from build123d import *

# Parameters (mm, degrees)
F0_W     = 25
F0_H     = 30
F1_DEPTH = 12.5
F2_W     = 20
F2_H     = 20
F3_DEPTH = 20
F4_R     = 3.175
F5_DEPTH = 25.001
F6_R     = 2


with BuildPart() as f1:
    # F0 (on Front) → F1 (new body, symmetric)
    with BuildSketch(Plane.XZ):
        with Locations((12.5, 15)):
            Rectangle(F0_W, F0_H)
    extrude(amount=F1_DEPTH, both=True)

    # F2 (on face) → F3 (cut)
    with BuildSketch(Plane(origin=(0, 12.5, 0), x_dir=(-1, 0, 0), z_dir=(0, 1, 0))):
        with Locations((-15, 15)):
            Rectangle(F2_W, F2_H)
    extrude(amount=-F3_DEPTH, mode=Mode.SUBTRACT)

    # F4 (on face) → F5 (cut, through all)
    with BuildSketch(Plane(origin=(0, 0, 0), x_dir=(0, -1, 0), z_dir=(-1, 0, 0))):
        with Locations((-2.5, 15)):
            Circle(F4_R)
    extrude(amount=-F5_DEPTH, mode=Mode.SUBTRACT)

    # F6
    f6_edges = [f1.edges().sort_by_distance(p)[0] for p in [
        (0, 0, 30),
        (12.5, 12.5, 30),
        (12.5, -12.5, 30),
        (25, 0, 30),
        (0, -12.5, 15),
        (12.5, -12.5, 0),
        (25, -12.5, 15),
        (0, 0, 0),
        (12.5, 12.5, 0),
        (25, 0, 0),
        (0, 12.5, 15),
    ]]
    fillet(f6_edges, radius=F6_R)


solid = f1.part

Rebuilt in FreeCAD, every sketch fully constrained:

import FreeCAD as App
import Part
import Sketcher

V = App.Vector
Q = App.Units.Quantity


def edges_at(feature, points):
    """Names of the edges that pass closest to the given points."""
    edges = feature.Shape.Edges
    near = lambda p: min(range(len(edges)), key=lambda i: edges[i].distToShape(Part.Vertex(*p))[0])
    return sorted({f"Edge{near(p) + 1}" for p in points})


def add_polygon(sketch, points):
    """Adds a closed chain of lines whose ends are joined by coincident constraints."""
    first, n = sketch.GeometryCount, len(points)
    for a, b in zip(points, points[1:] + points[:1]):
        sketch.addGeometry(Part.LineSegment(App.Vector(*a, 0), App.Vector(*b, 0)), False)
    for i in range(n):
        sketch.addConstraint(Sketcher.Constraint("Coincident", first + i, 2, first + (i + 1) % n, 1))

doc = App.newDocument("Part")
body = doc.addObject("PartDesign::Body", "Body")

sketch1 = body.newObject("Sketcher::SketchObject", "Sketch")
sketch1.AttachmentSupport = (doc.getObject("XZ_Plane"), [""])
sketch1.MapMode = "FlatFace"
add_polygon(sketch1, [(0, 30), (0, 0), (25, 0), (25, 30)])
sketch1.addConstraint([
    Sketcher.Constraint("Vertical", 0),
    Sketcher.Constraint("Horizontal", 1),
    Sketcher.Constraint("Vertical", 2),
    Sketcher.Constraint("Horizontal", 3),
    Sketcher.Constraint("Coincident", 0, 2, -1, 1),
    Sketcher.Constraint("DistanceX", 1, 1, 1, 2, Q("25 mm")),
    Sketcher.Constraint("DistanceY", 0, 2, 0, 1, Q("30 mm")),
])
pad1 = body.newObject("PartDesign::Pad", "Pad")
pad1.Profile = sketch1
pad1.Length = 25
pad1.Midplane = True

sketch2 = body.newObject("Sketcher::SketchObject", "Sketch001")
sketch2.AttachmentSupport = (doc.getObject("XZ_Plane"), [""])
sketch2.MapMode = "FlatFace"
sketch2.AttachmentOffset = App.Placement(V(0, 0, -12.5), App.Rotation())
add_polygon(sketch2, [(25, 25), (25, 5), (5, 5), (5, 25)])
sketch2.addConstraint([
    Sketcher.Constraint("Vertical", 0),
    Sketcher.Constraint("Horizontal", 1),
    Sketcher.Constraint("Vertical", 2),
    Sketcher.Constraint("Horizontal", 3),
    Sketcher.Constraint("Equal", 3, 0),
    Sketcher.Constraint("DistanceX", 1, 2, 1, 1, Q("20 mm")),
    Sketcher.Constraint("DistanceX", -1, 1, 0, 2, Q("25 mm")),
    Sketcher.Constraint("DistanceY", -1, 1, 0, 2, Q("5 mm")),
])
pocket1 = body.newObject("PartDesign::Pocket", "Pocket")
pocket1.Profile = sketch2
pocket1.Length = 20
pocket1.Reversed = True

sketch3 = body.newObject("Sketcher::SketchObject", "Sketch002")
sketch3.AttachmentSupport = (doc.getObject("YZ_Plane"), [""])
sketch3.MapMode = "FlatFace"
sketch3.addGeometry(Part.Circle(V(2.5, 15, 0), V(0, 0, 1), 3.2), False)
sketch3.addConstraint([
    Sketcher.Constraint("Diameter", 0, Q("6.35 mm")),
    Sketcher.Constraint("DistanceY", -1, 1, 0, 3, Q("15 mm")),
    Sketcher.Constraint("DistanceX", -1, 1, 0, 3, Q("2.5 mm")),
])
pocket2 = body.newObject("PartDesign::Pocket", "Pocket001")
pocket2.Profile = sketch3
pocket2.Type = "ThroughAll"
pocket2.Reversed = True
doc.recompute()

fillet = body.newObject("PartDesign::Fillet", "Fillet")
fillet.Base = (pocket2, edges_at(pocket2, [
    (0, 0, 30),
    (12.5, 12.5, 30),
    (12.5, -12.5, 30),
    (25, 0, 30),
    (0, -12.5, 15),
    (12.5, -12.5, 0),
    (25, -12.5, 15),
    (0, 0, 0),
    (12.5, 12.5, 0),
    (25, 0, 0),
    (0, 12.5, 15),
]))
fillet.Radius = 2

doc.recompute()
